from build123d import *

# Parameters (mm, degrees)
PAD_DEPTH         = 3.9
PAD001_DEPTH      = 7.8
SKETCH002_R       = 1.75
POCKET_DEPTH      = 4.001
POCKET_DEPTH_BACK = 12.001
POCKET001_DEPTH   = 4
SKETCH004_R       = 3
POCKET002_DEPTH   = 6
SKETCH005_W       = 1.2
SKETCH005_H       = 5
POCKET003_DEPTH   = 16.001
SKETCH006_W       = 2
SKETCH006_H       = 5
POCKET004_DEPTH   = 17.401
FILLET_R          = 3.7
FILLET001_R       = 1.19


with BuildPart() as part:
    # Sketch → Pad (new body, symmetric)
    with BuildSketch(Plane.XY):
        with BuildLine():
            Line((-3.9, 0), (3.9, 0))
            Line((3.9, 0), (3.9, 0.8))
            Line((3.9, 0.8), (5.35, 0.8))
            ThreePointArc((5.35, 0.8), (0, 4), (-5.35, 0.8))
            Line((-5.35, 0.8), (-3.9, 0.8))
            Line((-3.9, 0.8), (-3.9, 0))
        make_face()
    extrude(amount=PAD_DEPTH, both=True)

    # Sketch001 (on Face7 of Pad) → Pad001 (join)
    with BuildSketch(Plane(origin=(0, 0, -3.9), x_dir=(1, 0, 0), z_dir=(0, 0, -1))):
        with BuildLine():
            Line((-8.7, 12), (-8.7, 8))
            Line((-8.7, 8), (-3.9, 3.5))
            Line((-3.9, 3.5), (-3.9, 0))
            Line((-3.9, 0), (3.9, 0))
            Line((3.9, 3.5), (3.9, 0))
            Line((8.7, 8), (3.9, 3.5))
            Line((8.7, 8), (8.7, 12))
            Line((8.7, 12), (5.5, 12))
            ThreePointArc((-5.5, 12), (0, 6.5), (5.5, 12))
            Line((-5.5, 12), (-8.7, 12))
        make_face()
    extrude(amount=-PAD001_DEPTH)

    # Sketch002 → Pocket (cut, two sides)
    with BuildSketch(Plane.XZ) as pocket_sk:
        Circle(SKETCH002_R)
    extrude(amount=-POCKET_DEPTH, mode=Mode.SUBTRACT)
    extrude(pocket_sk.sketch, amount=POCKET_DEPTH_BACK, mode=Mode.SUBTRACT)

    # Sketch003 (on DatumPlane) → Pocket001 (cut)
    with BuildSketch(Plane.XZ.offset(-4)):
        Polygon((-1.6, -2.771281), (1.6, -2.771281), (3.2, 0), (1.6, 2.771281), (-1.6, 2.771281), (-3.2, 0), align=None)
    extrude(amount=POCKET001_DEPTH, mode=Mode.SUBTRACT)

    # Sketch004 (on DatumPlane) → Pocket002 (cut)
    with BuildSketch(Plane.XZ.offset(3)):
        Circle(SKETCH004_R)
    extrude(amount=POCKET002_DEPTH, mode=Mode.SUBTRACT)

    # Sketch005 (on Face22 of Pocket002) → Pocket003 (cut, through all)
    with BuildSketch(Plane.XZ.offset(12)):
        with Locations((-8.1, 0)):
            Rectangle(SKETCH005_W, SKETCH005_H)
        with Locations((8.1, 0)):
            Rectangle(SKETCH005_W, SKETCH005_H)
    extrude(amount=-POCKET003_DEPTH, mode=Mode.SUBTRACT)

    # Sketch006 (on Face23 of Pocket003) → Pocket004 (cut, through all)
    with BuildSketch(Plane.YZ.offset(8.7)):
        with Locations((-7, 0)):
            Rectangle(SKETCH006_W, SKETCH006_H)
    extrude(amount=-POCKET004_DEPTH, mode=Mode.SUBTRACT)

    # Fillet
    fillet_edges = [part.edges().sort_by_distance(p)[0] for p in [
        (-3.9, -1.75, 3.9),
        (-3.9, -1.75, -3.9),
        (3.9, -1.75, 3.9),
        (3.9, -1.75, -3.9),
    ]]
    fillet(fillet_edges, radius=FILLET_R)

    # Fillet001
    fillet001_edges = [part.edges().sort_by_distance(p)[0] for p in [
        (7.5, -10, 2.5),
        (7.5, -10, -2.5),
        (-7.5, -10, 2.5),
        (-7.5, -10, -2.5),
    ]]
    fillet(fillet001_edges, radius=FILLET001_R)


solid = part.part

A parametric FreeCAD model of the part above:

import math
import FreeCAD as App
import Part
import Sketcher
Q = App.Units.Quantity


def edges_at(feature, points):
    """Names of the edges that pass closest to the given points."""
    edges = feature.Shape.Edges
    near = lambda p: min(range(len(edges)), key=lambda i: edges[i].distToShape(Part.Vertex(*p))[0])
    return sorted({f"Edge{near(p) + 1}" for p in points})

doc = App.newDocument("Part")
body = doc.addObject("PartDesign::Body", "Body")

# Sketch on XY plane
sketch1 = body.newObject("Sketcher::SketchObject", "Sketch")
sketch1.AttachmentSupport = (doc.getObject("XY_Plane"), [""])
sketch1.MapMode = "FlatFace"
sketch1.addGeometry(Part.LineSegment(App.Vector(-3.9, 0, 0), App.Vector(3.9, 0, 0)), False)
sketch1.addGeometry(Part.LineSegment(App.Vector(3.9, 0, 0), App.Vector(3.9, 0.8, 0)), False)
sketch1.addGeometry(Part.LineSegment(App.Vector(3.9, 0.8, 0), App.Vector(5.3, 0.8, 0)), False)
sketch1.addGeometry(Part.ArcOfCircle(Part.Circle(App.Vector(0, -2.1, 0), App.Vector(0, 0, 1), 6.1), math.radians(28), math.radians(152)), False)
sketch1.addGeometry(Part.LineSegment(App.Vector(-5.3, 0.8, 0), App.Vector(-3.9, 0.8, 0)), False)
sketch1.addGeometry(Part.LineSegment(App.Vector(-3.9, 0.8, 0), App.Vector(-3.9, 0, 0)), False)
sketch1.addConstraint(Sketcher.Constraint("Coincident", 0, 2, 1, 1))
sketch1.addConstraint(Sketcher.Constraint("Coincident", 1, 2, 2, 1))
sketch1.addConstraint(Sketcher.Constraint("Coincident", 2, 2, 3, 1))
sketch1.addConstraint(Sketcher.Constraint("Coincident", 3, 2, 4, 1))
sketch1.addConstraint(Sketcher.Constraint("Coincident", 4, 2, 5, 1))
sketch1.addConstraint(Sketcher.Constraint("Coincident", 5, 2, 0, 1))
sketch1.addConstraint(Sketcher.Constraint("Horizontal", 0))
sketch1.addConstraint(Sketcher.Constraint("Vertical", 1))
sketch1.addConstraint(Sketcher.Constraint("Horizontal", 2))
sketch1.addConstraint(Sketcher.Constraint("Horizontal", 4))
sketch1.addConstraint(Sketcher.Constraint("Vertical", 5))
sketch1.addConstraint(Sketcher.Constraint("Symmetric", 0, 2, 5, 2, -1, 1))
sketch1.addConstraint(Sketcher.Constraint("Symmetric", 2, 2, 3, 2, -2))
sketch1.addConstraint(Sketcher.Constraint("DistanceX", 0, 1, 0, 2, 7.8))
sketch1.addConstraint(Sketcher.Constraint("DistanceY", 1, 1, 1, 2, 0.8))
sketch1.addConstraint(Sketcher.Constraint("DistanceX", 2, 1, 2, 2, 1.45))
sketch1.addConstraint(Sketcher.Constraint("Radius", 3, 6.072266))
pad1 = body.newObject("PartDesign::Pad", "Pad")
pad1.Profile = sketch1
pad1.Length = 7.8
pad1.Midplane = True

# Sketch on XY plane
sketch2 = body.newObject("Sketcher::SketchObject", "Sketch001")
sketch2.AttachmentSupport = (doc.getObject("XY_Plane"), [""])
sketch2.MapMode = "FlatFace"
sketch2.AttachmentOffset = App.Placement(App.Vector(0, 0, -3.9), App.Rotation())
sketch2.addGeometry(Part.LineSegment(App.Vector(-8.7, -12, 0), App.Vector(-8.7, -8, 0)), False)
sketch2.addGeometry(Part.LineSegment(App.Vector(-8.7, -8, 0), App.Vector(-3.9, -3.5, 0)), False)
sketch2.addGeometry(Part.LineSegment(App.Vector(-3.9, -3.5, 0), App.Vector(-3.9, 0, 0)), False)
sketch2.addGeometry(Part.LineSegment(App.Vector(-3.9, 0, 0), App.Vector(3.9, 0, 0)), False)
sketch2.addGeometry(Part.LineSegment(App.Vector(3.9, 0, 0), App.Vector(3.9, -3.5, 0)), False)
sketch2.addGeometry(Part.LineSegment(App.Vector(3.9, -3.5, 0), App.Vector(8.7, -8, 0)), False)
sketch2.addGeometry(Part.LineSegment(App.Vector(8.7, -8, 0), App.Vector(8.7, -12, 0)), False)
sketch2.addGeometry(Part.LineSegment(App.Vector(8.7, -12, 0), App.Vector(5.5, -12, 0)), False)
sketch2.addGeometry(Part.ArcOfCircle(Part.Circle(App.Vector(0, -12, 0), App.Vector(0, 0, 1), 5.5), math.radians(0), math.radians(180)), False)
sketch2.addGeometry(Part.LineSegment(App.Vector(-5.5, -12, 0), App.Vector(-8.7, -12, 0)), False)
sketch2.addConstraint(Sketcher.Constraint("Coincident", 0, 2, 1, 1))
sketch2.addConstraint(Sketcher.Constraint("Coincident", 1, 2, 2, 1))
sketch2.addConstraint(Sketcher.Constraint("Coincident", 2, 2, 3, 1))
sketch2.addConstraint(Sketcher.Constraint("Coincident", 3, 2, 4, 1))
sketch2.addConstraint(Sketcher.Constraint("Coincident", 4, 2, 5, 1))
sketch2.addConstraint(Sketcher.Constraint("Coincident", 5, 2, 6, 1))
sketch2.addConstraint(Sketcher.Constraint("Coincident", 6, 2, 7, 1))
sketch2.addConstraint(Sketcher.Constraint("Coincident", 7, 2, 8, 1))
sketch2.addConstraint(Sketcher.Constraint("Coincident", 8, 2, 9, 1))
sketch2.addConstraint(Sketcher.Constraint("Coincident", 9, 2, 0, 1))
sketch2.addConstraint(Sketcher.Constraint("Vertical", 0))
sketch2.addConstraint(Sketcher.Constraint("Vertical", 2))
sketch2.addConstraint(Sketcher.Constraint("Horizontal", 3))
sketch2.addConstraint(Sketcher.Constraint("Vertical", 4))
sketch2.addConstraint(Sketcher.Constraint("Vertical", 6))
sketch2.addConstraint(Sketcher.Constraint("Horizontal", 7))
sketch2.addConstraint(Sketcher.Constraint("Horizontal", 9))
sketch2.addConstraint(Sketcher.Constraint("Symmetric", 2, 2, 3, 2, -1, 1))
sketch2.addConstraint(Sketcher.Constraint("Symmetric", 0, 2, 5, 2, -2))
sketch2.addConstraint(Sketcher.Constraint("Symmetric", 7, 2, 8, 2, -2))
sketch2.addConstraint(Sketcher.Constraint("Horizontal", 1, 2, 4, 2))
sketch2.addConstraint(Sketcher.Constraint("Horizontal", 8, 3, 6, 2))
sketch2.addConstraint(Sketcher.Constraint("Radius", 8, 5.5))
sketch2.addConstraint(Sketcher.Constraint("DistanceY", 0, 1, 0, 2, 4.0))
sketch2.addConstraint(Sketcher.Constraint("DistanceX", 3, 1, 3, 2, 7.8))
sketch2.addConstraint(Sketcher.Constraint("DistanceX", 7, 2, 7, 1, 3.2))
sketch2.addConstraint(Sketcher.Constraint("DistanceY", 2, 1, 2, 2, 3.5))
sketch2.addConstraint(Sketcher.Constraint("DistanceY", 8, 3, -1, 1, 12.0))
pad2 = body.newObject("PartDesign::Pad", "Pad001")
pad2.Profile = sketch2
pad2.Length = 7.8

# Sketch on XZ plane
sketch3 = body.newObject("Sketcher::SketchObject", "Sketch002")
sketch3.AttachmentSupport = (doc.getObject("XZ_Plane"), [""])
sketch3.MapMode = "FlatFace"
sketch3.addGeometry(Part.Circle(App.Vector(0, 0, 0), App.Vector(0, 0, 1), 1.8), False)
sketch3.addConstraint(Sketcher.Constraint("Coincident", 0, 3, -1, 1))
sketch3.addConstraint(Sketcher.Constraint("Diameter", 0, 3.5))
pocket1 = body.newObject("PartDesign::Pocket", "Pocket")
pocket1.Profile = sketch3
pocket1.Type = "ThroughAll"
pocket1.Midplane = True

# Sketch on XZ plane
sketch4 = body.newObject("Sketcher::SketchObject", "Sketch003")
sketch4.AttachmentSupport = (doc.getObject("XZ_Plane"), [""])
sketch4.MapMode = "FlatFace"
sketch4.AttachmentOffset = App.Placement(App.Vector(0, 0, -4), App.Rotation())
sketch4.addGeometry(Part.LineSegment(App.Vector(-1.6, -2.8, 0), App.Vector(1.6, -2.8, 0)), False)
sketch4.addGeometry(Part.LineSegment(App.Vector(1.6, -2.8, 0), App.Vector(3.2, 0, 0)), False)
sketch4.addGeometry(Part.LineSegment(App.Vector(3.2, 0, 0), App.Vector(1.6, 2.8, 0)), False)
sketch4.addGeometry(Part.LineSegment(App.Vector(1.6, 2.8, 0), App.Vector(-1.6, 2.8, 0)), False)
sketch4.addGeometry(Part.LineSegment(App.Vector(-1.6, 2.8, 0), App.Vector(-3.2, 0, 0)), False)
sketch4.addGeometry(Part.LineSegment(App.Vector(-3.2, 0, 0), App.Vector(-1.6, -2.8, 0)), False)
sketch4.addConstraint(Sketcher.Constraint("Coincident", 0, 2, 1, 1))
sketch4.addConstraint(Sketcher.Constraint("Coincident", 1, 2, 2, 1))
sketch4.addConstraint(Sketcher.Constraint("Coincident", 2, 2, 3, 1))
sketch4.addConstraint(Sketcher.Constraint("Coincident", 3, 2, 4, 1))
sketch4.addConstraint(Sketcher.Constraint("Coincident", 4, 2, 5, 1))
sketch4.addConstraint(Sketcher.Constraint("Coincident", 5, 2, 0, 1))
sketch4.addConstraint(Sketcher.Constraint("Horizontal", 0))
sketch4.addConstraint(Sketcher.Constraint("Horizontal", 3))
sketch4.addConstraint(Sketcher.Constraint("Symmetric", 0, 2, 3, 2, -1, 1))
sketch4.addConstraint(Sketcher.Constraint("Symmetric", 1, 2, 4, 2, -1, 1))
sketch4.addConstraint(Sketcher.Constraint("PointOnObject", 1, 2, -1))
sketch4.addConstraint(Sketcher.Constraint("Parallel", 2, 5))
sketch4.addConstraint(Sketcher.Constraint("Vertical", 0, 2, 2, 2))
sketch4.addConstraint(Sketcher.Constraint("Angle", 1, Q("59.999997 deg")))
sketch4.addConstraint(Sketcher.Constraint("DistanceX", 0, 1, 0, 2, 3.2))
sketch4.addConstraint(Sketcher.Constraint("Distance", 1, 3.2))
pocket2 = body.newObject("PartDesign::Pocket", "Pocket001")
pocket2.Profile = sketch4
pocket2.Length = 4
pocket2.Reversed = True

# Sketch on XZ plane
sketch5 = body.newObject("Sketcher::SketchObject", "Sketch004")
sketch5.AttachmentSupport = (doc.getObject("XZ_Plane"), [""])
sketch5.MapMode = "FlatFace"
sketch5.AttachmentOffset = App.Placement(App.Vector(0, 0, 3), App.Rotation())
sketch5.addGeometry(Part.Circle(App.Vector(0, 0, 0), App.Vector(0, 0, 1), 3), False)
sketch5.addConstraint(Sketcher.Constraint("Coincident", 0, 3, -1, 1))
sketch5.addConstraint(Sketcher.Constraint("Diameter", 0, 6.0))
pocket3 = body.newObject("PartDesign::Pocket", "Pocket002")
pocket3.Profile = sketch5
pocket3.Length = 6
pocket3.Reversed = True

# Sketch on XZ plane
sketch6 = body.newObject("Sketcher::SketchObject", "Sketch005")
sketch6.AttachmentSupport = (doc.getObject("XZ_Plane"), [""])
sketch6.MapMode = "FlatFace"
sketch6.AttachmentOffset = App.Placement(App.Vector(0, 0, 12), App.Rotation())
sketch6.addGeometry(Part.LineSegment(App.Vector(-8.7, 2.5, 0), App.Vector(-8.7, -2.5, 0)), False)
sketch6.addGeometry(Part.LineSegment(App.Vector(-8.7, -2.5, 0), App.Vector(-7.5, -2.5, 0)), False)
sketch6.addGeometry(Part.LineSegment(App.Vector(-7.5, -2.5, 0), App.Vector(-7.5, 2.5, 0)), False)
sketch6.addGeometry(Part.LineSegment(App.Vector(-7.5, 2.5, 0), App.Vector(-8.7, 2.5, 0)), False)
sketch6.addGeometry(Part.LineSegment(App.Vector(7.5, 2.5, 0), App.Vector(7.5, -2.5, 0)), False)
sketch6.addGeometry(Part.LineSegment(App.Vector(7.5, -2.5, 0), App.Vector(8.7, -2.5, 0)), False)
sketch6.addGeometry(Part.LineSegment(App.Vector(8.7, -2.5, 0), App.Vector(8.7, 2.5, 0)), False)
sketch6.addGeometry(Part.LineSegment(App.Vector(8.7, 2.5, 0), App.Vector(7.5, 2.5, 0)), False)
sketch6.addConstraint(Sketcher.Constraint("Coincident", 0, 2, 1, 1))
sketch6.addConstraint(Sketcher.Constraint("Coincident", 1, 2, 2, 1))
sketch6.addConstraint(Sketcher.Constraint("Coincident", 2, 2, 3, 1))
sketch6.addConstraint(Sketcher.Constraint("Coincident", 3, 2, 0, 1))
sketch6.addConstraint(Sketcher.Constraint("Coincident", 4, 2, 5, 1))
sketch6.addConstraint(Sketcher.Constraint("Coincident", 5, 2, 6, 1))
sketch6.addConstraint(Sketcher.Constraint("Coincident", 6, 2, 7, 1))
sketch6.addConstraint(Sketcher.Constraint("Coincident", 7, 2, 4, 1))
sketch6.addConstraint(Sketcher.Constraint("Vertical", 0))
sketch6.addConstraint(Sketcher.Constraint("Horizontal", 1))
sketch6.addConstraint(Sketcher.Constraint("Vertical", 2))
sketch6.addConstraint(Sketcher.Constraint("Horizontal", 3))
sketch6.addConstraint(Sketcher.Constraint("Vertical", 4))
sketch6.addConstraint(Sketcher.Constraint("Horizontal", 5))
sketch6.addConstraint(Sketcher.Constraint("Vertical", 6))
sketch6.addConstraint(Sketcher.Constraint("Horizontal", 7))
sketch6.addConstraint(Sketcher.Constraint("Symmetric", 2, 2, 4, 2, -1, 1))
sketch6.addConstraint(Sketcher.Constraint("Symmetric", 0, 2, 6, 2, -1, 1))
sketch6.addConstraint(Sketcher.Constraint("Horizontal", 1, 2, 4, 2))
sketch6.addConstraint(Sketcher.Constraint("DistanceY", 0, 2, 0, 1, 5.0))
sketch6.addConstraint(Sketcher.Constraint("DistanceX", 1, 1, 1, 2, 1.2))
sketch6.addConstraint(Sketcher.Constraint("DistanceX", 1, 2, 4, 2, 15.0))
pocket4 = body.newObject("PartDesign::Pocket", "Pocket003")
pocket4.Profile = sketch6
pocket4.Type = "ThroughAll"

# Sketch on YZ plane
sketch7 = body.newObject("Sketcher::SketchObject", "Sketch006")
sketch7.AttachmentSupport = (doc.getObject("YZ_Plane"), [""])
sketch7.MapMode = "FlatFace"
sketch7.AttachmentOffset = App.Placement(App.Vector(0, 0, 8.7), App.Rotation())
sketch7.addGeometry(Part.LineSegment(App.Vector(-8, 2.5, 0), App.Vector(-8, -2.5, 0)), False)
sketch7.addGeometry(Part.LineSegment(App.Vector(-8, -2.5, 0), App.Vector(-6, -2.5, 0)), False)
sketch7.addGeometry(Part.LineSegment(App.Vector(-6, -2.5, 0), App.Vector(-6, 2.5, 0)), False)
sketch7.addGeometry(Part.LineSegment(App.Vector(-6, 2.5, 0), App.Vector(-8, 2.5, 0)), False)
sketch7.addConstraint(Sketcher.Constraint("Coincident", 0, 2, 1, 1))
sketch7.addConstraint(Sketcher.Constraint("Coincident", 1, 2, 2, 1))
sketch7.addConstraint(Sketcher.Constraint("Coincident", 2, 2, 3, 1))
sketch7.addConstraint(Sketcher.Constraint("Coincident", 3, 2, 0, 1))
sketch7.addConstraint(Sketcher.Constraint("Vertical", 0))
sketch7.addConstraint(Sketcher.Constraint("Horizontal", 1))
sketch7.addConstraint(Sketcher.Constraint("Vertical", 2))
sketch7.addConstraint(Sketcher.Constraint("Horizontal", 3))
sketch7.addConstraint(Sketcher.Constraint("DistanceX", 1, 1, 1, 2, 2.0))
sketch7.addConstraint(Sketcher.Constraint("DistanceY", 0, 2, 0, 1, 5.0))
sketch7.addConstraint(Sketcher.Constraint("DistanceX", 0, 2, -1, 1, 8.0))
sketch7.addConstraint(Sketcher.Constraint("DistanceY", 0, 2, -1, 1, 2.5))
pocket5 = body.newObject("PartDesign::Pocket", "Pocket004")
pocket5.Profile = sketch7
pocket5.Type = "ThroughAll"
doc.recompute()

fillet = body.newObject("PartDesign::Fillet", "Fillet")
fillet.Base = (pocket5, edges_at(pocket5, [
    (-3.9, -1.35, 3.9),
    (-3.9, -1.35, -3.9),
    (3.9, -1.35, 3.9),
    (3.9, -1.35, -3.9),
]))
fillet.Radius = 3.7
doc.recompute()

fillet2 = body.newObject("PartDesign::Fillet", "Fillet001")
fillet2.Base = (fillet, edges_at(fillet, [
    (7.5, -10, 2.5),
    (7.5, -10, -2.5),
    (-7.5, -10, 2.5),
    (-7.5, -10, -2.5),
]))
fillet2.Radius = 1.19

doc.recompute()
